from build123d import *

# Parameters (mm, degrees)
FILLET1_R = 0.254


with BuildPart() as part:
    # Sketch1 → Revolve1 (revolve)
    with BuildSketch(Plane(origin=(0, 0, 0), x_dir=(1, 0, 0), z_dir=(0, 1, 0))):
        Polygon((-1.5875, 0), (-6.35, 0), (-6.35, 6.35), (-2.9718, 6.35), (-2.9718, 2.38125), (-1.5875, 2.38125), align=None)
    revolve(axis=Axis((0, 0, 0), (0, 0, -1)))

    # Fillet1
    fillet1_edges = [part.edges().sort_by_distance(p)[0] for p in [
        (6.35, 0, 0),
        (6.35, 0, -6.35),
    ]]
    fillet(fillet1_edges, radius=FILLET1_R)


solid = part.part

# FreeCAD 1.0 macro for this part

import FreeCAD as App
import Part
import Sketcher

V = App.Vector
Q = App.Units.Quantity


def edges_at(feature, points):
    """Names of the edges that pass closest to the given points."""
    edges = feature.Shape.Edges
    near = lambda p: min(range(len(edges)), key=lambda i: edges[i].distToShape(Part.Vertex(*p))[0])
    return sorted({f"Edge{near(p) + 1}" for p in points})

doc = App.newDocument("Part")
body = doc.addObject("PartDesign::Body", "Body")

# Sketch on XZ plane
sketch1 = body.newObject("Sketcher::SketchObject", "Sketch")
sketch1.AttachmentSupport = (doc.getObject("XZ_Plane"), [""])
sketch1.MapMode = "FlatFace"
sketch1.addGeometry(Part.LineSegment(V(-6.35, 0, 0), V(-1.5875, 0, 0)), False)
sketch1.addGeometry(Part.LineSegment(V(-1.5875, 0, 0), V(-1.5875, -2.38125, 0)), False)
sketch1.addGeometry(Part.LineSegment(V(-1.5875, -2.38125, 0), V(-2.9718, -2.38125, 0)), False)
sketch1.addGeometry(Part.LineSegment(V(-2.9718, -2.38125, 0), V(-2.9718, -6.35, 0)), False)
sketch1.addGeometry(Part.LineSegment(V(-2.9718, -6.35, 0), V(-6.35, -6.35, 0)), False)
sketch1.addGeometry(Part.LineSegment(V(-6.35, -6.35, 0), V(-6.35, 0, 0)), False)
sketch1.addConstraint(Sketcher.Constraint("Coincident", 0, 2, 1, 1))
sketch1.addConstraint(Sketcher.Constraint("Coincident", 1, 2, 2, 1))
sketch1.addConstraint(Sketcher.Constraint("Coincident", 2, 2, 3, 1))
sketch1.addConstraint(Sketcher.Constraint("Coincident", 3, 2, 4, 1))
sketch1.addConstraint(Sketcher.Constraint("Coincident", 4, 2, 5, 1))
sketch1.addConstraint(Sketcher.Constraint("Coincident", 5, 2, 0, 1))
sketch1.addConstraint(Sketcher.Constraint("Horizontal", 0))
sketch1.addConstraint(Sketcher.Constraint("Vertical", 1))
sketch1.addConstraint(Sketcher.Constraint("Horizontal", 2))
sketch1.addConstraint(Sketcher.Constraint("Vertical", 3))
sketch1.addConstraint(Sketcher.Constraint("Horizontal", 4))
sketch1.addConstraint(Sketcher.Constraint("Vertical", 5))
sketch1.addConstraint(Sketcher.Constraint("PointOnObject", 0, 2, -1))
sketch1.addConstraint(Sketcher.Constraint("DistanceY", 5, 1, 5, 2, Q("0.25 in")))
sketch1.addConstraint(Sketcher.Constraint("DistanceX", 0, 1, 0, 2, Q("0.1875 in")))
sketch1.addConstraint(Sketcher.Constraint("DistanceX", 4, 2, 4, 1, Q("0.133 in")))
sketch1.addConstraint(Sketcher.Constraint("DistanceY", 1, 2, 1, 1, Q("0.09375 in")))
sketch1.addConstraint(Sketcher.Constraint("DistanceX", 4, 2, -1, 1, Q("0.25 in")))
revolution = body.newObject("PartDesign::Revolution", "Revolution")
revolution.Profile = sketch1
revolution.ReferenceAxis = (sketch1, ["V_Axis"])
revolution.Angle = 360
doc.recompute()

fillet = body.newObject("PartDesign::Fillet", "Fillet")
fillet.Base = (revolution, edges_at(revolution, [(6.35, 0, 0), (6.35, 0, -6.35)]))
fillet.Radius = Q("0.01 in")

doc.recompute()
